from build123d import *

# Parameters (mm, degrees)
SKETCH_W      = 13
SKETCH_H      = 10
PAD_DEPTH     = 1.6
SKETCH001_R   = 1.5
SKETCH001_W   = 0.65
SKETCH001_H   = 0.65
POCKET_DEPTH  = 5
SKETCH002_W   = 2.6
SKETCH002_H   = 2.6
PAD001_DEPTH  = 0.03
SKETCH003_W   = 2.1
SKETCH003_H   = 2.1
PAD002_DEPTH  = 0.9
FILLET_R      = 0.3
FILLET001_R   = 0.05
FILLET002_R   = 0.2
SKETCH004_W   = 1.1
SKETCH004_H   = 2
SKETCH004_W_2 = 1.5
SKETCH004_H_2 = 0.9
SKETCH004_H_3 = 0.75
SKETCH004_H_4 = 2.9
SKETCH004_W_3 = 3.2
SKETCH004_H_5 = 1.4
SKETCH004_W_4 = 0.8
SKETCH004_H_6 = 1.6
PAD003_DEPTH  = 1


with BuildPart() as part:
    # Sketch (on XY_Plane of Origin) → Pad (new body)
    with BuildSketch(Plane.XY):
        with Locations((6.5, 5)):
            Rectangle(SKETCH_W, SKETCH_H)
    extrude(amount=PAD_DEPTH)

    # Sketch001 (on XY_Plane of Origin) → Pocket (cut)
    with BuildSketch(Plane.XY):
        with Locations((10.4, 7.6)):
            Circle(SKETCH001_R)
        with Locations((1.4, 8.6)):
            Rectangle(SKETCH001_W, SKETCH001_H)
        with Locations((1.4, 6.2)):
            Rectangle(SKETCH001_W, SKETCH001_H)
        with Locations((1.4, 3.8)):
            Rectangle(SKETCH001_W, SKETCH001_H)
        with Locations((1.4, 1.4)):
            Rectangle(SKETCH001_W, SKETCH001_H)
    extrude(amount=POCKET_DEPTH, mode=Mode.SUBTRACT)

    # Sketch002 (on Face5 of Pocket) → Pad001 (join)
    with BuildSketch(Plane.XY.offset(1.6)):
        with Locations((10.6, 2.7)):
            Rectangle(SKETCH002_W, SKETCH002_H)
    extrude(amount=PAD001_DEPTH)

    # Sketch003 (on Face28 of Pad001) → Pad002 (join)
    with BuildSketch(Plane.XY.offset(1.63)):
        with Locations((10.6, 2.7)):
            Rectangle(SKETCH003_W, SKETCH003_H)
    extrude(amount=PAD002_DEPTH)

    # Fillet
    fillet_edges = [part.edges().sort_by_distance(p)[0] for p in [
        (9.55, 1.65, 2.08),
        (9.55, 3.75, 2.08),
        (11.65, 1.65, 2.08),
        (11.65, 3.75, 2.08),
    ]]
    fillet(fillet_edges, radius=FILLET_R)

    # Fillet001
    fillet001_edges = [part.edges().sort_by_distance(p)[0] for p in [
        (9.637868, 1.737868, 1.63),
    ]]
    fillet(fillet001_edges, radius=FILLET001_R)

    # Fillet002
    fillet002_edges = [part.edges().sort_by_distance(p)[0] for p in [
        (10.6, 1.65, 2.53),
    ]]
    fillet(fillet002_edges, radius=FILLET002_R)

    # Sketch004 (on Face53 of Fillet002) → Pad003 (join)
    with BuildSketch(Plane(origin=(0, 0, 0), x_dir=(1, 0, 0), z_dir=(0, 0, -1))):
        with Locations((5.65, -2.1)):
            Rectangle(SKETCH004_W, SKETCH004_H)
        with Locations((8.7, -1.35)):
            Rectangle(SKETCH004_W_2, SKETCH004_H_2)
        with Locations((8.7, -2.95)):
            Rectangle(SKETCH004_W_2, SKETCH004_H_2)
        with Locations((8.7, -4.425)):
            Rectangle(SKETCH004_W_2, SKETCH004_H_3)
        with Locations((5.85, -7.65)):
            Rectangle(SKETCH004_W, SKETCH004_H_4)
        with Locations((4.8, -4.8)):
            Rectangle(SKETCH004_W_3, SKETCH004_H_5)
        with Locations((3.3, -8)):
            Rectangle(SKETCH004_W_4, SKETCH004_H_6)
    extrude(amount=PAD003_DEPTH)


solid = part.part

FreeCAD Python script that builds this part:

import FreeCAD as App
import Part
import Sketcher
Q = App.Units.Quantity


def edges_at(feature, points):
    """Names of the edges that pass closest to the given points."""
    edges = feature.Shape.Edges
    near = lambda p: min(range(len(edges)), key=lambda i: edges[i].distToShape(Part.Vertex(*p))[0])
    return sorted({f"Edge{near(p) + 1}" for p in points})

doc = App.newDocument("Part")
body = doc.addObject("PartDesign::Body", "Body")

# Sketch on XY plane
sketch1 = body.newObject("Sketcher::SketchObject", "Sketch")
sketch1.AttachmentSupport = (doc.getObject("XY_Plane"), [""])
sketch1.MapMode = "FlatFace"
sketch1.addGeometry([
    Part.LineSegment(App.Vector(0, 10, 0), App.Vector(0, 0, 0)),
    Part.LineSegment(App.Vector(0, 0, 0), App.Vector(13, 0, 0)),
    Part.LineSegment(App.Vector(13, 0, 0), App.Vector(13, 10, 0)),
    Part.LineSegment(App.Vector(13, 10, 0), App.Vector(0, 10, 0)),
], False)
sketch1.addConstraint([
    Sketcher.Constraint("Coincident", 0, 2, 1, 1),
    Sketcher.Constraint("Coincident", 1, 2, 2, 1),
    Sketcher.Constraint("Coincident", 2, 2, 3, 1),
    Sketcher.Constraint("Coincident", 3, 2, 0, 1),
    Sketcher.Constraint("Vertical", 0),
    Sketcher.Constraint("Horizontal", 1),
    Sketcher.Constraint("Vertical", 2),
    Sketcher.Constraint("Horizontal", 3),
    Sketcher.Constraint("Coincident", 0, 2, -1, 1),
    Sketcher.Constraint("DistanceX", 1, 1, 1, 2, Q("13 mm")),
    Sketcher.Constraint("DistanceY", 0, 2, 0, 1, Q("10 mm")),
])
pad1 = body.newObject("PartDesign::Pad", "Pad")
pad1.Profile = sketch1
pad1.Length = 1.6

# Sketch on XY plane
sketch2 = body.newObject("Sketcher::SketchObject", "Sketch001")
sketch2.AttachmentSupport = (doc.getObject("XY_Plane"), [""])
sketch2.MapMode = "FlatFace"
sketch2.addGeometry([
    Part.Circle(App.Vector(10.4, 7.6, 0), App.Vector(0, 0, 1), 1.5),  # 0
    Part.LineSegment(App.Vector(1.1, 8.9, 0), App.Vector(1.1, 8.3, 0)),  # 1
    Part.LineSegment(App.Vector(1.1, 8.3, 0), App.Vector(1.7, 8.3, 0)),  # 2
    Part.LineSegment(App.Vector(1.7, 8.3, 0), App.Vector(1.7, 8.9, 0)),  # 3
    Part.LineSegment(App.Vector(1.7, 8.9, 0), App.Vector(1.1, 8.9, 0)),  # 4
    Part.LineSegment(App.Vector(1.1, 6.5, 0), App.Vector(1.1, 5.9, 0)),  # 5
    Part.LineSegment(App.Vector(1.1, 5.9, 0), App.Vector(1.7, 5.9, 0)),  # 6
    Part.LineSegment(App.Vector(1.7, 5.9, 0), App.Vector(1.7, 6.5, 0)),  # 7
    Part.LineSegment(App.Vector(1.7, 6.5, 0), App.Vector(1.1, 6.5, 0)),  # 8
    Part.LineSegment(App.Vector(1.1, 4.1, 0), App.Vector(1.1, 3.5, 0)),  # 9
    Part.LineSegment(App.Vector(1.1, 3.5, 0), App.Vector(1.7, 3.5, 0)),  # 10
    Part.LineSegment(App.Vector(1.7, 3.5, 0), App.Vector(1.7, 4.1, 0)),  # 11
    Part.LineSegment(App.Vector(1.7, 4.1, 0), App.Vector(1.1, 4.1, 0)),  # 12
    Part.LineSegment(App.Vector(1.1, 1.7, 0), App.Vector(1.1, 1.1, 0)),  # 13
    Part.LineSegment(App.Vector(1.1, 1.1, 0), App.Vector(1.7, 1.1, 0)),  # 14
    Part.LineSegment(App.Vector(1.7, 1.1, 0), App.Vector(1.7, 1.7, 0)),  # 15
    Part.LineSegment(App.Vector(1.7, 1.7, 0), App.Vector(1.1, 1.7, 0)),  # 16
], False)
sketch2.addConstraint([
    Sketcher.Constraint("Coincident", 1, 2, 2, 1),
    Sketcher.Constraint("Coincident", 2, 2, 3, 1),
    Sketcher.Constraint("Coincident", 3, 2, 4, 1),
    Sketcher.Constraint("Coincident", 4, 2, 1, 1),
    Sketcher.Constraint("Coincident", 5, 2, 6, 1),
    Sketcher.Constraint("Coincident", 6, 2, 7, 1),
    Sketcher.Constraint("Coincident", 7, 2, 8, 1),
    Sketcher.Constraint("Coincident", 8, 2, 5, 1),
    Sketcher.Constraint("Coincident", 9, 2, 10, 1),
    Sketcher.Constraint("Coincident", 10, 2, 11, 1),
    Sketcher.Constraint("Coincident", 11, 2, 12, 1),
    Sketcher.Constraint("Coincident", 12, 2, 9, 1),
    Sketcher.Constraint("Coincident", 13, 2, 14, 1),
    Sketcher.Constraint("Coincident", 14, 2, 15, 1),
    Sketcher.Constraint("Coincident", 15, 2, 16, 1),
    Sketcher.Constraint("Coincident", 16, 2, 13, 1),
    Sketcher.Constraint("Vertical", 1),
    Sketcher.Constraint("Horizontal", 2),
    Sketcher.Constraint("Vertical", 3),
    Sketcher.Constraint("Horizontal", 4),
    Sketcher.Constraint("Vertical", 5),
    Sketcher.Constraint("Horizontal", 6),
    Sketcher.Constraint("Vertical", 7),
    Sketcher.Constraint("Horizontal", 8),
    Sketcher.Constraint("Vertical", 9),
    Sketcher.Constraint("Horizontal", 10),
    Sketcher.Constraint("Vertical", 11),
    Sketcher.Constraint("Horizontal", 12),
    Sketcher.Constraint("Vertical", 13),
    Sketcher.Constraint("Horizontal", 14),
    Sketcher.Constraint("Vertical", 15),
    Sketcher.Constraint("Horizontal", 16),
    Sketcher.Constraint("Vertical", 4, 2, 5, 2),
    Sketcher.Constraint("Vertical", 3, 2, 6, 2),
    Sketcher.Constraint("Vertical", 8, 2, 9, 2),
    Sketcher.Constraint("Vertical", 7, 2, 10, 2),
    Sketcher.Constraint("Vertical", 12, 2, 13, 2),
    Sketcher.Constraint("Vertical", 11, 2, 14, 2),
    Sketcher.Constraint("Equal", 16, 1),
    Sketcher.Constraint("Equal", 3, 5),
    Sketcher.Constraint("Equal", 7, 9),
    Sketcher.Constraint("Equal", 11, 13),
    Sketcher.Constraint("Diameter", 0, Q("3 mm")),
    Sketcher.Constraint("DistanceX", 2, 1, 2, 2, Q("0.65 mm")),
    Sketcher.Constraint("DistanceX", -1, 1, 0, 3, Q("10.4 mm")),
    Sketcher.Constraint("DistanceY", -1, 1, 0, 3, Q("7.6 mm")),
    Sketcher.Constraint("DistanceY", 5, 2, 1, 2, Q("2.4 mm")),
    Sketcher.Constraint("DistanceY", 9, 2, 5, 2, Q("2.4 mm")),
    Sketcher.Constraint("DistanceY", 13, 2, 9, 2, Q("2.4 mm")),
    Sketcher.Constraint("DistanceX", -1, 1, 1, 2, Q("1.075 mm")),
    Sketcher.Constraint("DistanceY", -1, 1, 1, 2, Q("8.275 mm")),
])
pocket1 = body.newObject("PartDesign::Pocket", "Pocket")
pocket1.Profile = sketch2
pocket1.Length = 5
pocket1.Reversed = True

# Sketch on XY plane
sketch3 = body.newObject("Sketcher::SketchObject", "Sketch002")
sketch3.AttachmentSupport = (doc.getObject("XY_Plane"), [""])
sketch3.MapMode = "FlatFace"
sketch3.AttachmentOffset = App.Placement(App.Vector(0, 0, 1.6), App.Rotation())
sketch3.addGeometry([
    Part.LineSegment(App.Vector(9.3, 4, 0), App.Vector(9.3, 1.4, 0)),
    Part.LineSegment(App.Vector(9.3, 1.4, 0), App.Vector(11.9, 1.4, 0)),
    Part.LineSegment(App.Vector(11.9, 1.4, 0), App.Vector(11.9, 4, 0)),
    Part.LineSegment(App.Vector(11.9, 4, 0), App.Vector(9.3, 4, 0)),
], False)
sketch3.addConstraint([
    Sketcher.Constraint("Coincident", 0, 2, 1, 1),
    Sketcher.Constraint("Coincident", 1, 2, 2, 1),
    Sketcher.Constraint("Coincident", 2, 2, 3, 1),
    Sketcher.Constraint("Coincident", 3, 2, 0, 1),
    Sketcher.Constraint("Vertical", 0),
    Sketcher.Constraint("Horizontal", 1),
    Sketcher.Constraint("Vertical", 2),
    Sketcher.Constraint("Horizontal", 3),
    Sketcher.Constraint("Equal", 3, 0),
    Sketcher.Constraint("DistanceX", 1, 1, 1, 2, Q("2.6 mm")),
    Sketcher.Constraint("DistanceY", -1, 1, 2, 2, Q("4 mm")),
    Sketcher.Constraint("DistanceX", -1, 1, 0, 2, Q("9.3 mm")),
])
pad2 = body.newObject("PartDesign::Pad", "Pad001")
pad2.Profile = sketch3
pad2.Length = 0.03

# Sketch on XY plane
sketch4 = body.newObject("Sketcher::SketchObject", "Sketch003")
sketch4.AttachmentSupport = (doc.getObject("XY_Plane"), [""])
sketch4.MapMode = "FlatFace"
sketch4.AttachmentOffset = App.Placement(App.Vector(0, 0, 1.63), App.Rotation())
sketch4.addGeometry([
    Part.LineSegment(App.Vector(9.6, 3.8, 0), App.Vector(9.6, 1.6, 0)),
    Part.LineSegment(App.Vector(9.6, 1.6, 0), App.Vector(11.7, 1.6, 0)),
    Part.LineSegment(App.Vector(11.7, 1.6, 0), App.Vector(11.7, 3.8, 0)),
    Part.LineSegment(App.Vector(11.7, 3.8, 0), App.Vector(9.6, 3.8, 0)),
], False)
sketch4.addConstraint([
    Sketcher.Constraint("Coincident", 0, 2, 1, 1),
    Sketcher.Constraint("Coincident", 1, 2, 2, 1),
    Sketcher.Constraint("Coincident", 2, 2, 3, 1),
    Sketcher.Constraint("Coincident", 3, 2, 0, 1),
    Sketcher.Constraint("Vertical", 0),
    Sketcher.Constraint("Horizontal", 1),
    Sketcher.Constraint("Vertical", 2),
    Sketcher.Constraint("Horizontal", 3),
    Sketcher.Constraint("Equal", 3, 0),
    Sketcher.Constraint("DistanceX", 1, 1, 1, 2, Q("2.1 mm")),
    Sketcher.Constraint("DistanceX", -1, 1, 0, 2, Q("9.55 mm")),
    Sketcher.Constraint("DistanceY", -1, 1, 0, 2, Q("1.65 mm")),
])
pad3 = body.newObject("PartDesign::Pad", "Pad002")
pad3.Profile = sketch4
pad3.Length = 0.9
doc.recompute()

fillet = body.newObject("PartDesign::Fillet", "Fillet")
fillet.Base = (pad3, edges_at(pad3, [
    (9.55, 1.65, 2.08),
    (9.55, 3.75, 2.08),
    (11.65, 1.65, 2.08),
    (11.65, 3.75, 2.08),
]))
fillet.Radius = 0.3
doc.recompute()

fillet2 = body.newObject("PartDesign::Fillet", "Fillet001")
fillet2.Base = (fillet, edges_at(fillet, [(9.638, 1.738, 1.63)]))
fillet2.Radius = 0.05
doc.recompute()

fillet3 = body.newObject("PartDesign::Fillet", "Fillet002")
fillet3.Base = (fillet2, edges_at(fillet2, [(10.6, 1.65, 2.53)]))
fillet3.Radius = 0.2

# Sketch on XY plane
sketch5 = body.newObject("Sketcher::SketchObject", "Sketch004")
sketch5.AttachmentSupport = (doc.getObject("XY_Plane"), [""])
sketch5.MapMode = "FlatFace"
sketch5.addGeometry([
    Part.LineSegment(App.Vector(5.1, 1.1, 0), App.Vector(5.1, 3.1, 0)),  # 0
    Part.LineSegment(App.Vector(5.1, 3.1, 0), App.Vector(6.2, 3.1, 0)),  # 1
    Part.LineSegment(App.Vector(6.2, 3.1, 0), App.Vector(6.2, 1.1, 0)),  # 2
    Part.LineSegment(App.Vector(6.2, 1.1, 0), App.Vector(5.1, 1.1, 0)),  # 3
    Part.LineSegment(App.Vector(8, 0.9, 0), App.Vector(8, 1.8, 0)),  # 4
    Part.LineSegment(App.Vector(8, 1.8, 0), App.Vector(9.4, 1.8, 0)),  # 5
    Part.LineSegment(App.Vector(9.4, 1.8, 0), App.Vector(9.4, 0.9, 0)),  # 6
    Part.LineSegment(App.Vector(9.4, 0.9, 0), App.Vector(8, 0.9, 0)),  # 7
    Part.LineSegment(App.Vector(8, 2.5, 0), App.Vector(8, 3.4, 0)),  # 8
    Part.LineSegment(App.Vector(8, 3.4, 0), App.Vector(9.4, 3.4, 0)),  # 9
    Part.LineSegment(App.Vector(9.4, 3.4, 0), App.Vector(9.4, 2.5, 0)),  # 10
    Part.LineSegment(App.Vector(9.4, 2.5, 0), App.Vector(8, 2.5, 0)),  # 11
    Part.LineSegment(App.Vector(8, 4, 0), App.Vector(8, 4.8, 0)),  # 12
    Part.LineSegment(App.Vector(8, 4.8, 0), App.Vector(9.4, 4.8, 0)),  # 13
    Part.LineSegment(App.Vector(9.4, 4.8, 0), App.Vector(9.4, 4, 0)),  # 14
    Part.LineSegment(App.Vector(9.4, 4, 0), App.Vector(8, 4, 0)),  # 15
    Part.LineSegment(App.Vector(5.3, 6.2, 0), App.Vector(5.3, 9.1, 0)),  # 16
    Part.LineSegment(App.Vector(5.3, 9.1, 0), App.Vector(6.4, 9.1, 0)),  # 17
    Part.LineSegment(App.Vector(6.4, 9.1, 0), App.Vector(6.4, 6.2, 0)),  # 18
    Part.LineSegment(App.Vector(6.4, 6.2, 0), App.Vector(5.3, 6.2, 0)),  # 19
    Part.LineSegment(App.Vector(3.2, 4.1, 0), App.Vector(3.2, 5.5, 0)),  # 20
    Part.LineSegment(App.Vector(3.2, 5.5, 0), App.Vector(6.4, 5.5, 0)),  # 21
    Part.LineSegment(App.Vector(6.4, 5.5, 0), App.Vector(6.4, 4.1, 0)),  # 22
    Part.LineSegment(App.Vector(6.4, 4.1, 0), App.Vector(3.2, 4.1, 0)),  # 23
    Part.LineSegment(App.Vector(2.9, 7.2, 0), App.Vector(2.9, 8.8, 0)),  # 24
    Part.LineSegment(App.Vector(2.9, 8.8, 0), App.Vector(3.7, 8.8, 0)),  # 25
    Part.LineSegment(App.Vector(3.7, 8.8, 0), App.Vector(3.7, 7.2, 0)),  # 26
    Part.LineSegment(App.Vector(3.7, 7.2, 0), App.Vector(2.9, 7.2, 0)),  # 27
], False)
sketch5.addConstraint([
    Sketcher.Constraint("Coincident", 0, 2, 1, 1),
    Sketcher.Constraint("Coincident", 1, 2, 2, 1),
    Sketcher.Constraint("Coincident", 2, 2, 3, 1),
    Sketcher.Constraint("Coincident", 3, 2, 0, 1),
    Sketcher.Constraint("Coincident", 4, 2, 5, 1),
    Sketcher.Constraint("Coincident", 5, 2, 6, 1),
    Sketcher.Constraint("Coincident", 6, 2, 7, 1),
    Sketcher.Constraint("Coincident", 7, 2, 4, 1),
    Sketcher.Constraint("Coincident", 8, 2, 9, 1),
    Sketcher.Constraint("Coincident", 9, 2, 10, 1),
    Sketcher.Constraint("Coincident", 10, 2, 11, 1),
    Sketcher.Constraint("Coincident", 11, 2, 8, 1),
    Sketcher.Constraint("Coincident", 12, 2, 13, 1),
    Sketcher.Constraint("Coincident", 13, 2, 14, 1),
    Sketcher.Constraint("Coincident", 14, 2, 15, 1),
    Sketcher.Constraint("Coincident", 15, 2, 12, 1),
    Sketcher.Constraint("Coincident", 16, 2, 17, 1),
    Sketcher.Constraint("Coincident", 17, 2, 18, 1),
    Sketcher.Constraint("Coincident", 18, 2, 19, 1),
    Sketcher.Constraint("Coincident", 19, 2, 16, 1),
    Sketcher.Constraint("Coincident", 20, 2, 21, 1),
    Sketcher.Constraint("Coincident", 21, 2, 22, 1),
    Sketcher.Constraint("Coincident", 22, 2, 23, 1),
    Sketcher.Constraint("Coincident", 23, 2, 20, 1),
    Sketcher.Constraint("Coincident", 24, 2, 25, 1),
    Sketcher.Constraint("Coincident", 25, 2, 26, 1),
    Sketcher.Constraint("Coincident", 26, 2, 27, 1),
    Sketcher.Constraint("Coincident", 27, 2, 24, 1),
    Sketcher.Constraint("Vertical", 0),
    Sketcher.Constraint("Horizontal", 1),
    Sketcher.Constraint("Vertical", 2),
    Sketcher.Constraint("Horizontal", 3),
    Sketcher.Constraint("Vertical", 4),
    Sketcher.Constraint("Horizontal", 5),
    Sketcher.Constraint("Vertical", 6),
    Sketcher.Constraint("Horizontal", 7),
    Sketcher.Constraint("Vertical", 8),
    Sketcher.Constraint("Horizontal", 9),
    Sketcher.Constraint("Vertical", 10),
    Sketcher.Constraint("Horizontal", 11),
    Sketcher.Constraint("Vertical", 12),
    Sketcher.Constraint("Horizontal", 13),
    Sketcher.Constraint("Vertical", 14),
    Sketcher.Constraint("Horizontal", 15),
    Sketcher.Constraint("Vertical", 16),
    Sketcher.Constraint("Horizontal", 17),
    Sketcher.Constraint("Vertical", 18),
    Sketcher.Constraint("Horizontal", 19),
    Sketcher.Constraint("Vertical", 20),
    Sketcher.Constraint("Horizontal", 21),
    Sketcher.Constraint("Vertical", 22),
    Sketcher.Constraint("Horizontal", 23),
    Sketcher.Constraint("Vertical", 24),
    Sketcher.Constraint("Horizontal", 25),
    Sketcher.Constraint("Vertical", 26),
    Sketcher.Constraint("Horizontal", 27),
    Sketcher.Constraint("Vertical", 7, 2, 8, 2),
    Sketcher.Constraint("Vertical", 6, 2, 9, 2),
    Sketcher.Constraint("Vertical", 11, 2, 12, 2),
    Sketcher.Constraint("Vertical", 10, 2, 13, 2),
    Sketcher.Constraint("Vertical", 18, 2, 21, 2),
    Sketcher.Constraint("Equal", 3, 17),
    Sketcher.Constraint("Equal", 6, 8),
    Sketcher.Constraint("DistanceY", 0, 1, 0, 2, Q("2 mm")),
    Sketcher.Constraint("DistanceX", 1, 1, 1, 2, Q("1.1 mm")),
    Sketcher.Constraint("DistanceX", 5, 1, 5, 2, Q("1.5 mm")),
    Sketcher.Constraint("DistanceX", 21, 1, 21, 2, Q("3.2 mm")),
    Sketcher.Constraint("DistanceX", 25, 1, 25, 2, Q("0.8 mm")),
    Sketcher.Constraint("DistanceY", 4, 1, 4, 2, Q("0.9 mm")),
    Sketcher.Constraint("DistanceY", 16, 1, 16, 2, Q("2.9 mm")),
    Sketcher.Constraint("DistanceY", 20, 1, 20, 2, Q("1.4 mm")),
    Sketcher.Constraint("DistanceY", 24, 1, 24, 2, Q("1.6 mm")),
    Sketcher.Constraint("DistanceY", 0, 2, 16, 2, Q("6 mm")),
    Sketcher.Constraint("DistanceX", 20, 2, 1, 2, Q("3 mm")),
    Sketcher.Constraint("DistanceY", 1, 2, 22, 2, Q("1 mm")),
    Sketcher.Constraint("DistanceY", 19, 2, 26, 2, Q("1 mm")),
    Sketcher.Constraint("DistanceY", 12, 1, 12, 2, Q("0.75 mm")),
    Sketcher.Constraint("DistanceX", -1, 1, 0, 2, Q("5.1 mm")),
    Sketcher.Constraint("DistanceY", -1, 1, 0, 2, Q("3.1 mm")),
    Sketcher.Constraint("DistanceY", -1, 1, 4, 2, Q("1.8 mm")),
    Sketcher.Constraint("DistanceY", -1, 1, 8, 2, Q("3.4 mm")),
    Sketcher.Constraint("DistanceY", -1, 1, 12, 2, Q("4.8 mm")),
    Sketcher.Constraint("DistanceX", -1, 1, 24, 2, Q("2.9 mm")),
    Sketcher.Constraint("DistanceX", -1, 1, 4, 2, Q("7.95 mm")),
])
pad4 = body.newObject("PartDesign::Pad", "Pad003")
pad4.Profile = sketch5
pad4.Length = 1
pad4.Reversed = True

doc.recompute()
